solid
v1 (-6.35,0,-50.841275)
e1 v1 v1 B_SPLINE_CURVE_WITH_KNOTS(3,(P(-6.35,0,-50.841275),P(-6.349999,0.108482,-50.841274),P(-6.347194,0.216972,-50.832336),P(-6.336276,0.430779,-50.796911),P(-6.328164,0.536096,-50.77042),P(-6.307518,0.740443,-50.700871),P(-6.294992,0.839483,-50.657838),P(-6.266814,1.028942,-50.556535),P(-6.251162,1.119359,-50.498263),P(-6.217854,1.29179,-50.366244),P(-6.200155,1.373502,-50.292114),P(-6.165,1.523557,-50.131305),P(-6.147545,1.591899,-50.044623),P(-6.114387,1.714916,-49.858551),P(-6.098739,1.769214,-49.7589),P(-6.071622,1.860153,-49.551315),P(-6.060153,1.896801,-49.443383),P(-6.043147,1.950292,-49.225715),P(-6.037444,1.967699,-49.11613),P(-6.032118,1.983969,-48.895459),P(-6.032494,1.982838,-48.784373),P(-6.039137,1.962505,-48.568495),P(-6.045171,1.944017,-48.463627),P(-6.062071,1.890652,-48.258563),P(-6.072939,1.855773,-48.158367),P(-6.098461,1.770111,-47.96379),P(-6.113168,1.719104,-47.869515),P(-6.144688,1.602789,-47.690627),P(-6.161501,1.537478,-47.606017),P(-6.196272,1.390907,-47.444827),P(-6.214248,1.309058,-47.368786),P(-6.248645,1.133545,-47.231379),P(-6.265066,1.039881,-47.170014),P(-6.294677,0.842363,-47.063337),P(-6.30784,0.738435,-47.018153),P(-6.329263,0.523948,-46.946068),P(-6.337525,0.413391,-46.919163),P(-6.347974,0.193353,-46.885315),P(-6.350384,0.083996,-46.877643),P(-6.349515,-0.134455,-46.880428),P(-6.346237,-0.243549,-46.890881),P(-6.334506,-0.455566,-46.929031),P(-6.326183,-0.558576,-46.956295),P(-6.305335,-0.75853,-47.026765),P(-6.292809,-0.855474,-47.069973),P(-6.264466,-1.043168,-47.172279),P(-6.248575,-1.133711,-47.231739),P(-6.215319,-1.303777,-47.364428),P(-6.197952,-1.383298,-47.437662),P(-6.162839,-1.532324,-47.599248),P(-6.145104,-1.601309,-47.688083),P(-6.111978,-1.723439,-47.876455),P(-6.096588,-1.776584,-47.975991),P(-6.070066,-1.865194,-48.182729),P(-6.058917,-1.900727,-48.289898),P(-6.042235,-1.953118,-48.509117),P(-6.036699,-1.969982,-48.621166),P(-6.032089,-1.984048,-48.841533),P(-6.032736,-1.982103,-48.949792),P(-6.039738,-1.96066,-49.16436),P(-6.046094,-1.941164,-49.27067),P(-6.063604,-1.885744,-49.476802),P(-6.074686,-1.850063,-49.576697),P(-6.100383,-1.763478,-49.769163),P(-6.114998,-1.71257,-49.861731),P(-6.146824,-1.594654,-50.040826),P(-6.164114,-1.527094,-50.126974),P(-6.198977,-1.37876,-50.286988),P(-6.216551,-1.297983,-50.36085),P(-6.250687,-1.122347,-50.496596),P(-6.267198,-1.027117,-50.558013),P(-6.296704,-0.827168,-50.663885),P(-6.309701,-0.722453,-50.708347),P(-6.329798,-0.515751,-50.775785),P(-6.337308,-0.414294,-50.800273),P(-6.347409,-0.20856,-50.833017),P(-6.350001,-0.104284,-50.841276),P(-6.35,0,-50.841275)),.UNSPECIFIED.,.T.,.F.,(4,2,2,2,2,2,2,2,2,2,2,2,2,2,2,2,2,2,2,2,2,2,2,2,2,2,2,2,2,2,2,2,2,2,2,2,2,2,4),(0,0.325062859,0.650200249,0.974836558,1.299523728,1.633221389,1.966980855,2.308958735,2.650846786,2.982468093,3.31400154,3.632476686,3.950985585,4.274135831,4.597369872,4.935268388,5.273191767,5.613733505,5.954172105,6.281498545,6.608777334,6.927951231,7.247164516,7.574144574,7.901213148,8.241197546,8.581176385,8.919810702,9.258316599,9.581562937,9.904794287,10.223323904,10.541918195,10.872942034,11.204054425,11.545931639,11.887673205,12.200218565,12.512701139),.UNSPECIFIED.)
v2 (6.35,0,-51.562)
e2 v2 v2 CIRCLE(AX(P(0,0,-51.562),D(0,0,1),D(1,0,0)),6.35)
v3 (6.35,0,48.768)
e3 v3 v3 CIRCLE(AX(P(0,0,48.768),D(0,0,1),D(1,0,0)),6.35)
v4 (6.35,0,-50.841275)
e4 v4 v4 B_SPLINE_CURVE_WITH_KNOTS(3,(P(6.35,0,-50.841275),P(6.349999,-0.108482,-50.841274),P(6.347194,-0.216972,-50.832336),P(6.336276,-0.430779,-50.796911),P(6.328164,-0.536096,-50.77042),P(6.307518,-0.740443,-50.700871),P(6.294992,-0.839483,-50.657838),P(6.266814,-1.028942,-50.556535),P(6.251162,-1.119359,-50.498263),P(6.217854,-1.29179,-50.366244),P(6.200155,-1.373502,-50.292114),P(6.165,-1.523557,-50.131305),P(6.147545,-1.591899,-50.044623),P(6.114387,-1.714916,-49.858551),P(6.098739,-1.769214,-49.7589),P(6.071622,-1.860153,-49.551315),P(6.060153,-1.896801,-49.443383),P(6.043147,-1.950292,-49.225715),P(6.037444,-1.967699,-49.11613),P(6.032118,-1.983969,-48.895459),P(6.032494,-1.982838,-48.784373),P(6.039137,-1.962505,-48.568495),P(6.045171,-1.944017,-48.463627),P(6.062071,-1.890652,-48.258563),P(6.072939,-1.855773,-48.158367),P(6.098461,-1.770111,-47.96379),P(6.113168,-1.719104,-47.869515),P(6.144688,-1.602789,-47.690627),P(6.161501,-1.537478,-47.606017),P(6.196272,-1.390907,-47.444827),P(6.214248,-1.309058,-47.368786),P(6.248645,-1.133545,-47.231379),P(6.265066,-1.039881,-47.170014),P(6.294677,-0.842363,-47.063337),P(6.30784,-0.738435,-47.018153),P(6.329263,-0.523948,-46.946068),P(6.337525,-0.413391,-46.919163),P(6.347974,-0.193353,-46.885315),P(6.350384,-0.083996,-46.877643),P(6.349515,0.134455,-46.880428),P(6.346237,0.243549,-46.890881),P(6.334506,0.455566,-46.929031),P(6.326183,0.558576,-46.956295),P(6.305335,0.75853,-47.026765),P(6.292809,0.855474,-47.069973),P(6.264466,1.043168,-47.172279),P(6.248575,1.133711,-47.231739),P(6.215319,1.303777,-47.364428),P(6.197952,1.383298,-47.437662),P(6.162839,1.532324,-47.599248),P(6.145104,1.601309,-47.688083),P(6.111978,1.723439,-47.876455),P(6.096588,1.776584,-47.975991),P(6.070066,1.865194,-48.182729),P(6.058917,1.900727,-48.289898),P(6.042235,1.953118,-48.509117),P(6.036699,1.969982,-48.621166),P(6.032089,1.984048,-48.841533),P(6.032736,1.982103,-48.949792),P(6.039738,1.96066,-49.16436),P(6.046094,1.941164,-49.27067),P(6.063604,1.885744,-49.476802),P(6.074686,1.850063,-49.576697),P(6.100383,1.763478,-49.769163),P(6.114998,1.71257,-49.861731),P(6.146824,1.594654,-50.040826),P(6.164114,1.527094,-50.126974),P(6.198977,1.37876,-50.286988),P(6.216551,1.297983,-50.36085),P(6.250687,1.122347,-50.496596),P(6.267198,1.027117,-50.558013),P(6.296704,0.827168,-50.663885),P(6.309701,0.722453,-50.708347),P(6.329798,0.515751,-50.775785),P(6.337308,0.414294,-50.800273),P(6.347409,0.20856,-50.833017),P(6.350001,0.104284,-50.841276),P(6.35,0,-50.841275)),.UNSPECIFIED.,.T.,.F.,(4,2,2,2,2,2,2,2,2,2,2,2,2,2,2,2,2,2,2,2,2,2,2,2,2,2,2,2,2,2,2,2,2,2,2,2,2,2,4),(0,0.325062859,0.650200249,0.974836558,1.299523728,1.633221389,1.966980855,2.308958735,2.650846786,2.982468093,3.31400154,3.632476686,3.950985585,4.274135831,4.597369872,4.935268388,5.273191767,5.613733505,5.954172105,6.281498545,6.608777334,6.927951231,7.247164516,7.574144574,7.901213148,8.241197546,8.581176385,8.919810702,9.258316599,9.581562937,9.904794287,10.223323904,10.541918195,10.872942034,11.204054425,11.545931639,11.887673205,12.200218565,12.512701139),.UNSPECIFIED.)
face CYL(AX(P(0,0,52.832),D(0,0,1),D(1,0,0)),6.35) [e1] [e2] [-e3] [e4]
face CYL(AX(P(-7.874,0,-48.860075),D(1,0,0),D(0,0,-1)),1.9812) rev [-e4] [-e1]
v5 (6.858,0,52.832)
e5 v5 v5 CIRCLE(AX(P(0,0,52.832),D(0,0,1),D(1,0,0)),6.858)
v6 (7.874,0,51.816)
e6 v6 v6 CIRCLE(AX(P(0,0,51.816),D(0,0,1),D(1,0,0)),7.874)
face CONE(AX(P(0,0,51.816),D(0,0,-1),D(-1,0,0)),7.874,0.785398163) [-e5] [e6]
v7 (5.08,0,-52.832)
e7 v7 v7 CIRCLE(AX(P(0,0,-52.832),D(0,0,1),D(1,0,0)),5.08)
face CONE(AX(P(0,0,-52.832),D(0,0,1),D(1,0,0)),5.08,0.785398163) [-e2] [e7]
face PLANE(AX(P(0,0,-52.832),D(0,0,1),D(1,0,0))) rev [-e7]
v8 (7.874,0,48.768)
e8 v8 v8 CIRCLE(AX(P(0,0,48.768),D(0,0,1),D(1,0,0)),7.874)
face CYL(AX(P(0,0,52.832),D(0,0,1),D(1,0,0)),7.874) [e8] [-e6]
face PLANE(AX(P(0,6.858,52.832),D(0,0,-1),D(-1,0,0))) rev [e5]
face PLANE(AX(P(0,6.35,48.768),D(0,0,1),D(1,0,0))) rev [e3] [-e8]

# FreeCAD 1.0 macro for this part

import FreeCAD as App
import Part
import Sketcher
Q = App.Units.Quantity


def add_polygon(sketch, points):
    """Adds a closed chain of lines whose ends are joined by coincident constraints."""
    first, n = sketch.GeometryCount, len(points)
    for a, b in zip(points, points[1:] + points[:1]):
        sketch.addGeometry(Part.LineSegment(App.Vector(*a, 0), App.Vector(*b, 0)), False)
    for i in range(n):
        sketch.addConstraint(Sketcher.Constraint("Coincident", first + i, 2, first + (i + 1) % n, 1))

doc = App.newDocument("Part")
body = doc.addObject("PartDesign::Body", "Body")

# Sketch on YZ plane
sketch1 = body.newObject("Sketcher::SketchObject", "Sketch")
sketch1.AttachmentSupport = (doc.getObject("YZ_Plane"), [""])
sketch1.MapMode = "FlatFace"
add_polygon(sketch1, [(6.35, -51.562), (6.35, 48.768), (7.874, 48.768), (7.874, 51.816), (6.858, 52.832), (0, 52.832), (0, -52.832), (5.08, -52.832)])  # lines 0-7
sketch1.addConstraint(Sketcher.Constraint("Vertical", 0))
sketch1.addConstraint(Sketcher.Constraint("Horizontal", 1))
sketch1.addConstraint(Sketcher.Constraint("Vertical", 2))
sketch1.addConstraint(Sketcher.Constraint("Horizontal", 4))
sketch1.addConstraint(Sketcher.Constraint("Vertical", 5))
sketch1.addConstraint(Sketcher.Constraint("Horizontal", 6))
sketch1.addConstraint(Sketcher.Constraint("Symmetric", 4, 2, 5, 2, -1, 1))
sketch1.addConstraint(Sketcher.Constraint("Perpendicular", 3, 7))
sketch1.addConstraint(Sketcher.Constraint("DistanceX", 6, 1, 6, 2, Q("0.2 in")))
sketch1.addConstraint(Sketcher.Constraint("Angle", 3, Q("135 deg")))
sketch1.addConstraint(Sketcher.Constraint("DistanceY", 5, 2, 0, 2, Q("4 in")))
sketch1.addConstraint(Sketcher.Constraint("DistanceX", 1, 1, 1, 2, Q("0.06 in")))
sketch1.addConstraint(Sketcher.Constraint("DistanceX", 4, 2, 4, 1, Q("0.27 in")))
sketch1.addConstraint(Sketcher.Constraint("DistanceY", 0, 1, 0, 2, Q("3.95 in")))
sketch1.addConstraint(Sketcher.Constraint("DistanceY", 2, 1, 2, 2, Q("0.12 in")))
revolution = body.newObject("PartDesign::Revolution", "Revolution")
revolution.Profile = sketch1
revolution.ReferenceAxis = (sketch1, ["V_Axis"])
revolution.Angle = 360

# Sketch on YZ plane
sketch2 = body.newObject("Sketcher::SketchObject", "Sketch001")
sketch2.AttachmentSupport = (doc.getObject("YZ_Plane"), [""])
sketch2.MapMode = "FlatFace"
sketch2.addGeometry(Part.Circle(App.Vector(0, -48.860075, 0), App.Vector(0, 0, 1), 1.9812), False)
sketch2.addConstraint(Sketcher.Constraint("PointOnObject", 0, 3, -2))
sketch2.addConstraint(Sketcher.Constraint("Diameter", 0, Q("0.156 in")))
sketch2.addConstraint(Sketcher.Constraint("DistanceY", 0, 3, -1, 1, 48.860075))
pocket1 = body.newObject("PartDesign::Pocket", "Pocket")
pocket1.Profile = sketch2
pocket1.Type = "ThroughAll"
pocket1.Midplane = True

doc.recompute()
